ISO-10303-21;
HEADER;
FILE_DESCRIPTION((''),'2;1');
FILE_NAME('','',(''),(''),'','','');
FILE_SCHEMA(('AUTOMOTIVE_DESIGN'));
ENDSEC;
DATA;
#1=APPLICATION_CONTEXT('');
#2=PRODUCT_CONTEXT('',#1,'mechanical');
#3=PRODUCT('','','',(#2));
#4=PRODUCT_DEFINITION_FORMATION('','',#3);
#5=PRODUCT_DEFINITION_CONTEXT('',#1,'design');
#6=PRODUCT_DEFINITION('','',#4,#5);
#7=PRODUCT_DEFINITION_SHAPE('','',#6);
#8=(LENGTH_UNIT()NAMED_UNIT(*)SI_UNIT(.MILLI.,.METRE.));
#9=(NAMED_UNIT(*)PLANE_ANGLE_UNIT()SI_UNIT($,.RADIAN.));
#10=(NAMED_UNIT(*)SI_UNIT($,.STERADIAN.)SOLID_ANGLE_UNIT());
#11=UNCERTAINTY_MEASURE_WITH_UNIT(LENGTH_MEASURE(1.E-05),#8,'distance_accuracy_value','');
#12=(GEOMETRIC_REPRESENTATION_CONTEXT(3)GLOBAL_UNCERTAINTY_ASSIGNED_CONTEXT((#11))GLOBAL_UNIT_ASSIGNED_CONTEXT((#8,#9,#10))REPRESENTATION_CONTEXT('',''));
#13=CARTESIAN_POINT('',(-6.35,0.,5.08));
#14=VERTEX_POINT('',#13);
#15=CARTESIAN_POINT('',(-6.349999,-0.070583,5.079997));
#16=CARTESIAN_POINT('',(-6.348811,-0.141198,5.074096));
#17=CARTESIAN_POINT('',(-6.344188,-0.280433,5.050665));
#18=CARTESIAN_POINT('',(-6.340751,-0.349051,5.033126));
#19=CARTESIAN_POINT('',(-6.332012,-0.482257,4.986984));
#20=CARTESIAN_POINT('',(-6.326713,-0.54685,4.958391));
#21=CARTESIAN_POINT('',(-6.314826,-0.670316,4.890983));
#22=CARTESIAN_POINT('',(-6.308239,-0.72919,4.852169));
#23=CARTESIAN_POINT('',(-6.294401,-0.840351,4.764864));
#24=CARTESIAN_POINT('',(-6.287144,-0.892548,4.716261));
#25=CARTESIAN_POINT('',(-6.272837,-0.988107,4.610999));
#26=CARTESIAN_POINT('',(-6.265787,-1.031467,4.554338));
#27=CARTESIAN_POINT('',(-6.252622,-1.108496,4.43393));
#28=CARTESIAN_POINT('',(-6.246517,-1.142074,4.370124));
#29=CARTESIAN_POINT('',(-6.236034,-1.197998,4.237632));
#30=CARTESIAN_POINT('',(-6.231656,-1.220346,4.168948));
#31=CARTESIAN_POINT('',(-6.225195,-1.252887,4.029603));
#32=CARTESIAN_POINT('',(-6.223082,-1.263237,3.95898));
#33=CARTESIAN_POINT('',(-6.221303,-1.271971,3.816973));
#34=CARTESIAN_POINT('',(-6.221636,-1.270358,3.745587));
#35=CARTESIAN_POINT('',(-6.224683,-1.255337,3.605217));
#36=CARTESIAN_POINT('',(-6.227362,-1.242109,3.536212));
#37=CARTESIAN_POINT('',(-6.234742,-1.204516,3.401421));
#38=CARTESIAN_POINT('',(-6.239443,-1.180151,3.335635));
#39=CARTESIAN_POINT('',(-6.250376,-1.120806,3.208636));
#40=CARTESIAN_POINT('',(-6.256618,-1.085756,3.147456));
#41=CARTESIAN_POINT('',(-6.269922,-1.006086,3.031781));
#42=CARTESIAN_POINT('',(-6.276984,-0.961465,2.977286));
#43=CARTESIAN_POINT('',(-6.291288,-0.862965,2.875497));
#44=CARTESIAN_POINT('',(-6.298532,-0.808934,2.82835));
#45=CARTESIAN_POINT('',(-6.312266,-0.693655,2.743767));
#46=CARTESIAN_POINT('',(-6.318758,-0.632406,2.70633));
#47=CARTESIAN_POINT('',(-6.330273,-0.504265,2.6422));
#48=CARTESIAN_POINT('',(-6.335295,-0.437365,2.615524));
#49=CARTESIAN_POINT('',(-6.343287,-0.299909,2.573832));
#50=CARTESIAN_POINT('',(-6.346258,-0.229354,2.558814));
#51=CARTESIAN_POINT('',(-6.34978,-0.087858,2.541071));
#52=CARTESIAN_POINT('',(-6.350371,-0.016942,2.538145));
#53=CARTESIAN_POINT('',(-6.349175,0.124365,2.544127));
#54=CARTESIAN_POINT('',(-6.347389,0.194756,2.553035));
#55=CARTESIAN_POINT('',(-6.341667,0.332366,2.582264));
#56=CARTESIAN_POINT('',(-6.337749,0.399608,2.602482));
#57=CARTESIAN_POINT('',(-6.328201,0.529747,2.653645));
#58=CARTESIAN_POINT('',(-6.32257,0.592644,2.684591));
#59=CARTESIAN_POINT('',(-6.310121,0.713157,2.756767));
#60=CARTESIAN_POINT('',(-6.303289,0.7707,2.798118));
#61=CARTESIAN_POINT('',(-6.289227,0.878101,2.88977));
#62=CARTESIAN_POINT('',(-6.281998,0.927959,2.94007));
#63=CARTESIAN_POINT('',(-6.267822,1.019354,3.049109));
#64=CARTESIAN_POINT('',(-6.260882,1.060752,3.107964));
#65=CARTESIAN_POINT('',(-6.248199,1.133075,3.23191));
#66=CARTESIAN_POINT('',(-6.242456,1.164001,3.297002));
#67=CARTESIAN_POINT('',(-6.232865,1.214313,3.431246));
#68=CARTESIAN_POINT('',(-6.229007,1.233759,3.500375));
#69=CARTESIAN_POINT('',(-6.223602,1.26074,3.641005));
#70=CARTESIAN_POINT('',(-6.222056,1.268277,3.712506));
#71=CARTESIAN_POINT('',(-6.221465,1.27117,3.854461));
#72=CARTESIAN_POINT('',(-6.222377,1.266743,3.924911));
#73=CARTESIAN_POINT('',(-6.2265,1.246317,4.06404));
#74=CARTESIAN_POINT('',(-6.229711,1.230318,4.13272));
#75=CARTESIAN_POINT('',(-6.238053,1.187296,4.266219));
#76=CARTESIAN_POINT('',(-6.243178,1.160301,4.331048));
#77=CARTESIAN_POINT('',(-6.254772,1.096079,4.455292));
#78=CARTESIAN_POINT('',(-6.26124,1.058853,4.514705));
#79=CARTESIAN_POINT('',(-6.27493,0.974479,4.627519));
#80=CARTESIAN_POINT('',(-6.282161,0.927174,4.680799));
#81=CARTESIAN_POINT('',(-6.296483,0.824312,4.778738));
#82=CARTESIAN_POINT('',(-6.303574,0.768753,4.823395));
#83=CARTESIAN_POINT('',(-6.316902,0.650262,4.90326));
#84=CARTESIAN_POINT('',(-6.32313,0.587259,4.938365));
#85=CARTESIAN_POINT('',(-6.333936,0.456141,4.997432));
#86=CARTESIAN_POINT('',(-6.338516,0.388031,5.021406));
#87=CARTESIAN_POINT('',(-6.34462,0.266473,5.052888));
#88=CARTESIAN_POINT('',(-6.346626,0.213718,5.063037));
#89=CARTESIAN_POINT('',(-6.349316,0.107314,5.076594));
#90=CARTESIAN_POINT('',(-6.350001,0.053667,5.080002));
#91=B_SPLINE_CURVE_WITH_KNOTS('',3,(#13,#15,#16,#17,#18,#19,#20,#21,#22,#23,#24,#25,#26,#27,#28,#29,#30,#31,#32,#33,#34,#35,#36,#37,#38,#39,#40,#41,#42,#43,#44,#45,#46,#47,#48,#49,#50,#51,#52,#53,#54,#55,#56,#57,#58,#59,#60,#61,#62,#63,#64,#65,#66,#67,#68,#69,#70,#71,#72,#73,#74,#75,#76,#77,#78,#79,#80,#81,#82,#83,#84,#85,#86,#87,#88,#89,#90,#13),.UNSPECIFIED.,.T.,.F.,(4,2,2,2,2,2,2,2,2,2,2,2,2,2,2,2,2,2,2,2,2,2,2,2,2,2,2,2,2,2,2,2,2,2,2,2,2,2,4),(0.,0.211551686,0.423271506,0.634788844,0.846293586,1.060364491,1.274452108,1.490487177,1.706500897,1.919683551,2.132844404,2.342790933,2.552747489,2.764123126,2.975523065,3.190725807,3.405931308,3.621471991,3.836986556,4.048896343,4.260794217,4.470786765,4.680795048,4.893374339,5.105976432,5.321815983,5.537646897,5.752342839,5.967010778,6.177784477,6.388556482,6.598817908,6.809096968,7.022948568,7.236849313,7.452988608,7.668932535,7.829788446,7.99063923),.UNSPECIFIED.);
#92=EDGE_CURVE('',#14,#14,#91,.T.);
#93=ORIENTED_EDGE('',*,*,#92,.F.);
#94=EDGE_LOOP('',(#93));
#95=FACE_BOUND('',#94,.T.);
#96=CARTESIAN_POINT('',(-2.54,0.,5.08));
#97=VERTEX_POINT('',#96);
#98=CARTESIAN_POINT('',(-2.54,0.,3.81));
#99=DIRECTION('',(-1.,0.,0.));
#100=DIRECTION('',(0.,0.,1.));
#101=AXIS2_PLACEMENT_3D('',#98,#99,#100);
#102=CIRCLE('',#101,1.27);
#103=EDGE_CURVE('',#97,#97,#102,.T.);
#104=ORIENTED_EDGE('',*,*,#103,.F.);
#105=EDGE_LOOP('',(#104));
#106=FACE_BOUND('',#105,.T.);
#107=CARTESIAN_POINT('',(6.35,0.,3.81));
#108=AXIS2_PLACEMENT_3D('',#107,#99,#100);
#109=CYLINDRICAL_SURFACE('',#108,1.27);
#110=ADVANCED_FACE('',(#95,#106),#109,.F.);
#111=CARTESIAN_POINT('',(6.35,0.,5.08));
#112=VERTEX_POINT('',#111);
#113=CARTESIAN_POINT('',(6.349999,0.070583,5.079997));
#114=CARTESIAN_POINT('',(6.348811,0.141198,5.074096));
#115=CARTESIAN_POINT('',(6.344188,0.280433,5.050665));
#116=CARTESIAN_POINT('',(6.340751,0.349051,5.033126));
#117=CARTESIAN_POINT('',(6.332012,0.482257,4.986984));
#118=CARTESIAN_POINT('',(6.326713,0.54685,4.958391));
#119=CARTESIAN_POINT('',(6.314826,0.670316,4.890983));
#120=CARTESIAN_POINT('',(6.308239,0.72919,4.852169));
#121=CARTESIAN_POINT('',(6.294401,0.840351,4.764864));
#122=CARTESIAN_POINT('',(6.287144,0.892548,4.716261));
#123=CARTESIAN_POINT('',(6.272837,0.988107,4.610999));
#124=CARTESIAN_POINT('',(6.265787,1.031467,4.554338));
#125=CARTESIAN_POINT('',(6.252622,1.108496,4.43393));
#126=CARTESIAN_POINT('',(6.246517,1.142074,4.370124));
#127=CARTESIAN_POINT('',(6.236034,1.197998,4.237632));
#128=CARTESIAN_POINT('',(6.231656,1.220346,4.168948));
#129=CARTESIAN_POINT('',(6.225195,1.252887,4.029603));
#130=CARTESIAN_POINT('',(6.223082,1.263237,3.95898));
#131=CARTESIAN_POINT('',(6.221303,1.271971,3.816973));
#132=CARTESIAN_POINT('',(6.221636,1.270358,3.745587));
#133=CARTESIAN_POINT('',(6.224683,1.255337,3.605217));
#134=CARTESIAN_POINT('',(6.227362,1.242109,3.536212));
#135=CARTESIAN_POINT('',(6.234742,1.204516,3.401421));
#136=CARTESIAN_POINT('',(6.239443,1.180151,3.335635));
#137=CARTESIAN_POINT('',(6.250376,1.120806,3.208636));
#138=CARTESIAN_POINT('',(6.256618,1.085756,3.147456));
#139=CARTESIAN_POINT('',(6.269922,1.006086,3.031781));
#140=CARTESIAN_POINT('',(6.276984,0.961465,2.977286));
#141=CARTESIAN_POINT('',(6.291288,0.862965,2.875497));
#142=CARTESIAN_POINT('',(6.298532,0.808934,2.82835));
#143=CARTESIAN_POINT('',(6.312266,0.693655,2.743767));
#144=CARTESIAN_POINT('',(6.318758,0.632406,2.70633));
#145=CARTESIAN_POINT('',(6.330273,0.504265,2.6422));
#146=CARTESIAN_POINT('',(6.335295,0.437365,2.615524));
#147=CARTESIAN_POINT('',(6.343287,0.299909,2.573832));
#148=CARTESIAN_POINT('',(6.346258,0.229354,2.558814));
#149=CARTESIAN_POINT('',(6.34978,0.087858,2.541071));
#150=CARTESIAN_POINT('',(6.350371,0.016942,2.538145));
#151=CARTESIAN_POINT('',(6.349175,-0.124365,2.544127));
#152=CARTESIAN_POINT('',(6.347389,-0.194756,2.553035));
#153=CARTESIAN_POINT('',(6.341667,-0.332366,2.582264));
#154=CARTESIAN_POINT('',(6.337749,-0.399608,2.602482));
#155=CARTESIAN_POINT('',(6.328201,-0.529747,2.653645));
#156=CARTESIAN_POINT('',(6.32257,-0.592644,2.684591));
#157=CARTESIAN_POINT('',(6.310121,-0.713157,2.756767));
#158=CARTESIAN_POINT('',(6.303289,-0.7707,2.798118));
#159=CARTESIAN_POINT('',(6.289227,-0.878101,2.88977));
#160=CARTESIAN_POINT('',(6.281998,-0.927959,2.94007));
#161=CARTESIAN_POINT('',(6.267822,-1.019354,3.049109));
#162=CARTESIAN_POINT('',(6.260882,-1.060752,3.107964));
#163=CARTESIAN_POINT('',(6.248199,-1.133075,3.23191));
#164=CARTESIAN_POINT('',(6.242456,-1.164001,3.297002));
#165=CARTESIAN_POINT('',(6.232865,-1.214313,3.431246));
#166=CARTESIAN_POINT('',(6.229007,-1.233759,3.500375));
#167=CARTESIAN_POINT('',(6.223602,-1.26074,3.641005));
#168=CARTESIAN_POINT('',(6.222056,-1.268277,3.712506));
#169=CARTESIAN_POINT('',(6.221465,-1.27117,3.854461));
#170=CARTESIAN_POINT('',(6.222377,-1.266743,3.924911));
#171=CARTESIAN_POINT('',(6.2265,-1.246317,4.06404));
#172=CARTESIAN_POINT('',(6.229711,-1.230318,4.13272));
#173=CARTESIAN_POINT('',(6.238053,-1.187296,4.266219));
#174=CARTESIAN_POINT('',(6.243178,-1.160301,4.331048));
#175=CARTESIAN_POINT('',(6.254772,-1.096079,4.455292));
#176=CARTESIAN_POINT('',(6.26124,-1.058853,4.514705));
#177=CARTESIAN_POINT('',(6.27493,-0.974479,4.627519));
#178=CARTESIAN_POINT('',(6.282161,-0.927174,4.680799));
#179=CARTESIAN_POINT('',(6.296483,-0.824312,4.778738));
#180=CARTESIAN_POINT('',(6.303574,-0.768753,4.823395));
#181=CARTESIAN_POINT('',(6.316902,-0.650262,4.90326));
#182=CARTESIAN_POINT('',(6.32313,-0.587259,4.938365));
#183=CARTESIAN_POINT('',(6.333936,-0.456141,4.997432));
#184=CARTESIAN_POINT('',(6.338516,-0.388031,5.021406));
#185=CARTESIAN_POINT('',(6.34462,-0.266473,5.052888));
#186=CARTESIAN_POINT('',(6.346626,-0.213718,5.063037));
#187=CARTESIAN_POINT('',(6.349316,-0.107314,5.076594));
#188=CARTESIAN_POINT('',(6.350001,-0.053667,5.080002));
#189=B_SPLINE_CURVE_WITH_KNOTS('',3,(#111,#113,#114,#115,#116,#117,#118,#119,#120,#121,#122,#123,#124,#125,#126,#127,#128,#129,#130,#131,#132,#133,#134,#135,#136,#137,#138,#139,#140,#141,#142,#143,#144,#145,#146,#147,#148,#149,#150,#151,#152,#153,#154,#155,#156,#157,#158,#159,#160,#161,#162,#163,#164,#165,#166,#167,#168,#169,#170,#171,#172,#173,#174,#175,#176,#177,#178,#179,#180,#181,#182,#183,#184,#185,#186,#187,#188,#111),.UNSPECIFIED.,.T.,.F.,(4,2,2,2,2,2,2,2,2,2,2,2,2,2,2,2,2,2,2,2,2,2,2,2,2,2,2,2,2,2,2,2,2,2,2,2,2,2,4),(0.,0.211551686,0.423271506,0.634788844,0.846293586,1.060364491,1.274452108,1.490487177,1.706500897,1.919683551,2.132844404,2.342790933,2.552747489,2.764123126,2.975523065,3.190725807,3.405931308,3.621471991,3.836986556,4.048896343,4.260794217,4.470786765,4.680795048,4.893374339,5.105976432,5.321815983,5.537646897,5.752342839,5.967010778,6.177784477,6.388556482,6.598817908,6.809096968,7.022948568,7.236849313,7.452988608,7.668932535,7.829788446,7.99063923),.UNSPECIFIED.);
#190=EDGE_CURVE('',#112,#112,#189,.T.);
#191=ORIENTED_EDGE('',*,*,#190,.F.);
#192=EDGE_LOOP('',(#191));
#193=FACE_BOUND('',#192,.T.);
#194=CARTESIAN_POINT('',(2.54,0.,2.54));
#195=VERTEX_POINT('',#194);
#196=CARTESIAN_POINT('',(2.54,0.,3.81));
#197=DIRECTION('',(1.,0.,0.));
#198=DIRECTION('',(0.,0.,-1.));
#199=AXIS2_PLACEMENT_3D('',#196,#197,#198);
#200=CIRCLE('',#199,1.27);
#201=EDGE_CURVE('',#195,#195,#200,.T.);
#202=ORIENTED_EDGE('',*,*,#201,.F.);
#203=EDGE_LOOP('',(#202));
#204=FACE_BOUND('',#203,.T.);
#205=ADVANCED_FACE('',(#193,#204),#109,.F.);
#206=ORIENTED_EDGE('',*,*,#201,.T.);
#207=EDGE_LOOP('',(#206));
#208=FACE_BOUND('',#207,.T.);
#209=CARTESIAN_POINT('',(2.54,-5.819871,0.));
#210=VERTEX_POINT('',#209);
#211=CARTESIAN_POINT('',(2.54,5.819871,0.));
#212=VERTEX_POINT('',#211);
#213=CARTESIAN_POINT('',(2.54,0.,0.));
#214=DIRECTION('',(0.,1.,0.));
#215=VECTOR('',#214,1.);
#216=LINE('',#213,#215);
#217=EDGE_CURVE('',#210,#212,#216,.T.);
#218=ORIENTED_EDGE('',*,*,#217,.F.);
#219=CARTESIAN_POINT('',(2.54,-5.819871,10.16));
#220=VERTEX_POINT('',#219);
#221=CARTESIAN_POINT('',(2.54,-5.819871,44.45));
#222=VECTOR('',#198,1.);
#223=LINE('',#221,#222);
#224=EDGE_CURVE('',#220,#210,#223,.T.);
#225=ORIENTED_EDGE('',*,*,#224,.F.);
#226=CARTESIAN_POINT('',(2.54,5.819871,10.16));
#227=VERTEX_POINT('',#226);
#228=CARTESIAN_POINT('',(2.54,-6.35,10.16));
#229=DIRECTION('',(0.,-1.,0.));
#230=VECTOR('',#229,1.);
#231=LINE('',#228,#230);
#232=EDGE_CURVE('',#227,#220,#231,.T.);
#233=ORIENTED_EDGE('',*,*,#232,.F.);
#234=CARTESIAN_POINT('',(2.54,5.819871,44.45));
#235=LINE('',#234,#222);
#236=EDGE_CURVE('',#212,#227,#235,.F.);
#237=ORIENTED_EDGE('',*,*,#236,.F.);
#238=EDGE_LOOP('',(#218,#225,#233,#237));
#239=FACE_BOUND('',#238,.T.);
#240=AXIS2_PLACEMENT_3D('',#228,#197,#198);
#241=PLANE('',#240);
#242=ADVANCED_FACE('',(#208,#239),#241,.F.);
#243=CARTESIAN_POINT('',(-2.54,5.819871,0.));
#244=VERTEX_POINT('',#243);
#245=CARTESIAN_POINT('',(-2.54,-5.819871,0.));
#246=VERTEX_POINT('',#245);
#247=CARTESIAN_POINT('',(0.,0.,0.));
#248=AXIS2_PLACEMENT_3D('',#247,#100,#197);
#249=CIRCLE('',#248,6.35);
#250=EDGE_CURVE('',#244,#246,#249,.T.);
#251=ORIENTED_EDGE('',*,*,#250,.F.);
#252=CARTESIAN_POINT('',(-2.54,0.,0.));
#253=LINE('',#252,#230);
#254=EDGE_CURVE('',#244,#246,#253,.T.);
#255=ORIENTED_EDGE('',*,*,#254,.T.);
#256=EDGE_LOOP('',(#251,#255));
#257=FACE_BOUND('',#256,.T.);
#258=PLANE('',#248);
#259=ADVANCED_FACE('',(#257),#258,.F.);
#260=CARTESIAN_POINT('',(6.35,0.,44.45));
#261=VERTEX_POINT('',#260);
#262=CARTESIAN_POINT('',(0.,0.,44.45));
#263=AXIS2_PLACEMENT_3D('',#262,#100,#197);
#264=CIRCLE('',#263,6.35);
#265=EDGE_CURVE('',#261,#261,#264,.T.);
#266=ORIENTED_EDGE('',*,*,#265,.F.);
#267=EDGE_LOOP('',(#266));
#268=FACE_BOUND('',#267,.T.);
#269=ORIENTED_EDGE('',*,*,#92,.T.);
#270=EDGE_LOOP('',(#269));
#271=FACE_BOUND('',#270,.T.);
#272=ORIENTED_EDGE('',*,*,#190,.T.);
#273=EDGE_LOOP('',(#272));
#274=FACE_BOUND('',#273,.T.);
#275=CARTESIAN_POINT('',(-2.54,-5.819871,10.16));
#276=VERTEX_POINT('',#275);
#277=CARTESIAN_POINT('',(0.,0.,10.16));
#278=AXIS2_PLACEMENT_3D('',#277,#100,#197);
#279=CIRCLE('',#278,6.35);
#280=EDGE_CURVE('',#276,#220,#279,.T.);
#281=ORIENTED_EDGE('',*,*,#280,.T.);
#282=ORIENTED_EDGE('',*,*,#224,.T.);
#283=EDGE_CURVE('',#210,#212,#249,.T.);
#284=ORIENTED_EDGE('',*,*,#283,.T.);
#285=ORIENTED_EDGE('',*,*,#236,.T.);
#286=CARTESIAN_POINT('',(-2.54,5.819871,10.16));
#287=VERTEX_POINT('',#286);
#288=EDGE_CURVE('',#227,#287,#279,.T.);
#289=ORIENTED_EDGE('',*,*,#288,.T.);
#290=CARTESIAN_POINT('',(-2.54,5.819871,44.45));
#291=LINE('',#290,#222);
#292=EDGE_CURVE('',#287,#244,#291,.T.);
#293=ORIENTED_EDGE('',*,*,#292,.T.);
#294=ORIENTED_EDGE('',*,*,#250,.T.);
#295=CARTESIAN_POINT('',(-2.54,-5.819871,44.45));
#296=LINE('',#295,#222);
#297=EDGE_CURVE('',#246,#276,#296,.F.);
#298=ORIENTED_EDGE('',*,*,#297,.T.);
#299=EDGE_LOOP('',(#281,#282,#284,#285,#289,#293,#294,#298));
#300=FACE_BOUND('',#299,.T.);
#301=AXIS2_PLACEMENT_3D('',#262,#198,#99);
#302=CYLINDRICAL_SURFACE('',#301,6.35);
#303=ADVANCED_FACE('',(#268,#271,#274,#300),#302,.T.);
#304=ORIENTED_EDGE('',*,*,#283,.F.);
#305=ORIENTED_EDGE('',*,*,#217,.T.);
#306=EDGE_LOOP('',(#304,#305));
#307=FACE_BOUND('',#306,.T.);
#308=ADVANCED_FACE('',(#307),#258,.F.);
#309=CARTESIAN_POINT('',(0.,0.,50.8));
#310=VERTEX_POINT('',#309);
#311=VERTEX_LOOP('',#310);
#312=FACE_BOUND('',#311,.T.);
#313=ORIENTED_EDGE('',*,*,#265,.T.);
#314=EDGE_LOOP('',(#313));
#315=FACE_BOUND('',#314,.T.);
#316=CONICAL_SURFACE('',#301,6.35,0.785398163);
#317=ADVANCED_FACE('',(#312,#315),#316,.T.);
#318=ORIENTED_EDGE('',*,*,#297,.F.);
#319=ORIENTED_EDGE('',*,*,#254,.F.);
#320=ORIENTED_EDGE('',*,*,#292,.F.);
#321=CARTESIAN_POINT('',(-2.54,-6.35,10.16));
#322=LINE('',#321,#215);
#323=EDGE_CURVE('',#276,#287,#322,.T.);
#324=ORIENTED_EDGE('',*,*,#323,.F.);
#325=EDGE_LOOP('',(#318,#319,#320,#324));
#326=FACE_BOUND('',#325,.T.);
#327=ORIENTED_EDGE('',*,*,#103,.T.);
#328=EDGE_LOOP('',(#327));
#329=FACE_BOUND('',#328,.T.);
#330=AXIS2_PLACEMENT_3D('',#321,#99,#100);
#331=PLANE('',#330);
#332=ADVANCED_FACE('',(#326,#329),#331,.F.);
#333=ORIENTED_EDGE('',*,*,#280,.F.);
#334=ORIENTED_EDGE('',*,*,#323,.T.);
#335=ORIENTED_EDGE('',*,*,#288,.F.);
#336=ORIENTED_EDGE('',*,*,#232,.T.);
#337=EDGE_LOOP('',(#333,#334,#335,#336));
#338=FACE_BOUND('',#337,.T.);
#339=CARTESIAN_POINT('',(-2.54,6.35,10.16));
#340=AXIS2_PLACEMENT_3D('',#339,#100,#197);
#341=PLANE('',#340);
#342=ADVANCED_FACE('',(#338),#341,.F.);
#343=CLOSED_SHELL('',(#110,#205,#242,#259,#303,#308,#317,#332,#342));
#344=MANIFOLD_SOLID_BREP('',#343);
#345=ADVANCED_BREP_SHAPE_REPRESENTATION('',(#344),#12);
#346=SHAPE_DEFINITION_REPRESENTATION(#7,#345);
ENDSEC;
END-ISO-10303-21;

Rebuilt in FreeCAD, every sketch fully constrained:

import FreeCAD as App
import Part
import Sketcher

V = App.Vector
Q = App.Units.Quantity

doc = App.newDocument("Part")
body = doc.addObject("PartDesign::Body", "Body")

sketch1 = doc.addObject("Sketcher::SketchObject", "Sketch")
body.addObject(sketch1)
sketch1.AttachmentSupport = (doc.XY_Plane, [""])
sketch1.MapMode = "FlatFace"
sketch1.addGeometry(Part.Circle(V(0, 0, 0), V(0, 0, 1), 6), False)
sketch1.addConstraint([
    Sketcher.Constraint("Coincident", 0, 3, -1, 1),
    Sketcher.Constraint("Diameter", 0, Q("0.5 in")),
])
pad1 = doc.addObject("PartDesign::Pad", "Pad")
body.addObject(pad1)
pad1.Profile = sketch1
pad1.Length = Q("1.75 in")

sketch2 = doc.addObject("Sketcher::SketchObject", "Sketch001")
body.addObject(sketch2)
sketch2.AttachmentSupport = (doc.YZ_Plane, [""])
sketch2.MapMode = "FlatFace"
sketch2.addGeometry([
    Part.LineSegment(V(6, 44, 0), V(0, 51, 0)),
    Part.LineSegment(V(0, 51, 0), V(0, 44, 0)),
    Part.LineSegment(V(0, 44, 0), V(6, 44, 0)),
], False)
sketch2.addConstraint([
    Sketcher.Constraint("Coincident", 0, 2, 1, 1),
    Sketcher.Constraint("Coincident", 1, 2, 2, 1),
    Sketcher.Constraint("Coincident", 2, 2, 0, 1),
    Sketcher.Constraint("Vertical", 1),
    Sketcher.Constraint("Horizontal", 2),
    Sketcher.Constraint("PointOnObject", 0, 2, -2),
    Sketcher.Constraint("Equal", 2, 1),
    Sketcher.Constraint("DistanceY", -1, 1, 0, 2, Q("2 in")),
    Sketcher.Constraint("DistanceX", 2, 1, 2, 2, Q("0.25 in")),
])
revolution = doc.addObject("PartDesign::Revolution", "Revolution")
body.addObject(revolution)
revolution.Profile = sketch2
revolution.ReferenceAxis = (sketch2, ["V_Axis"])
revolution.Angle = 360

sketch3 = doc.addObject("Sketcher::SketchObject", "Sketch002")
body.addObject(sketch3)
sketch3.AttachmentSupport = (doc.XY_Plane, [""])
sketch3.MapMode = "FlatFace"
sketch3.addGeometry([
    Part.LineSegment(V(3, 6, 0), V(3, -6, 0)),
    Part.LineSegment(V(3, -6, 0), V(-3, -6, 0)),
    Part.LineSegment(V(-3, -6, 0), V(-3, 6, 0)),
    Part.LineSegment(V(-3, 6, 0), V(3, 6, 0)),
], False)
sketch3.addConstraint([
    Sketcher.Constraint("Coincident", 0, 2, 1, 1),
    Sketcher.Constraint("Coincident", 1, 2, 2, 1),
    Sketcher.Constraint("Coincident", 2, 2, 3, 1),
    Sketcher.Constraint("Coincident", 3, 2, 0, 1),
    Sketcher.Constraint("Vertical", 0),
    Sketcher.Constraint("Horizontal", 1),
    Sketcher.Constraint("Vertical", 2),
    Sketcher.Constraint("Horizontal", 3),
    Sketcher.Constraint("Symmetric", 0, 2, 2, 2, -1, 1),
    Sketcher.Constraint("DistanceX", 1, 2, 1, 1, Q("0.2 in")),
    Sketcher.Constraint("DistanceY", 0, 2, 0, 1, Q("0.5 in")),
])
pocket1 = doc.addObject("PartDesign::Pocket", "Pocket")
body.addObject(pocket1)
pocket1.Profile = sketch3
pocket1.Length = Q("0.4 in")
pocket1.Reversed = True

sketch4 = doc.addObject("Sketcher::SketchObject", "Sketch003")
body.addObject(sketch4)
sketch4.AttachmentSupport = (doc.YZ_Plane, [""])
sketch4.MapMode = "FlatFace"
sketch4.AttachmentOffset = App.Placement(V(0, 0, 0.1 * 25.4), App.Rotation())
sketch4.addGeometry(Part.Circle(V(0, 3.8, 0), V(0, 0, 1), 1.3), False)
sketch4.addConstraint([
    Sketcher.Constraint("PointOnObject", 0, 3, -2),
    Sketcher.Constraint("Diameter", 0, Q("0.1 in")),
    Sketcher.Constraint("DistanceY", -1, 1, 0, 3, Q("0.15 in")),
])
pocket2 = doc.addObject("PartDesign::Pocket", "Pocket001")
body.addObject(pocket2)
pocket2.Profile = sketch4
pocket2.Type = "ThroughAll"
pocket2.Midplane = True

doc.recompute()
